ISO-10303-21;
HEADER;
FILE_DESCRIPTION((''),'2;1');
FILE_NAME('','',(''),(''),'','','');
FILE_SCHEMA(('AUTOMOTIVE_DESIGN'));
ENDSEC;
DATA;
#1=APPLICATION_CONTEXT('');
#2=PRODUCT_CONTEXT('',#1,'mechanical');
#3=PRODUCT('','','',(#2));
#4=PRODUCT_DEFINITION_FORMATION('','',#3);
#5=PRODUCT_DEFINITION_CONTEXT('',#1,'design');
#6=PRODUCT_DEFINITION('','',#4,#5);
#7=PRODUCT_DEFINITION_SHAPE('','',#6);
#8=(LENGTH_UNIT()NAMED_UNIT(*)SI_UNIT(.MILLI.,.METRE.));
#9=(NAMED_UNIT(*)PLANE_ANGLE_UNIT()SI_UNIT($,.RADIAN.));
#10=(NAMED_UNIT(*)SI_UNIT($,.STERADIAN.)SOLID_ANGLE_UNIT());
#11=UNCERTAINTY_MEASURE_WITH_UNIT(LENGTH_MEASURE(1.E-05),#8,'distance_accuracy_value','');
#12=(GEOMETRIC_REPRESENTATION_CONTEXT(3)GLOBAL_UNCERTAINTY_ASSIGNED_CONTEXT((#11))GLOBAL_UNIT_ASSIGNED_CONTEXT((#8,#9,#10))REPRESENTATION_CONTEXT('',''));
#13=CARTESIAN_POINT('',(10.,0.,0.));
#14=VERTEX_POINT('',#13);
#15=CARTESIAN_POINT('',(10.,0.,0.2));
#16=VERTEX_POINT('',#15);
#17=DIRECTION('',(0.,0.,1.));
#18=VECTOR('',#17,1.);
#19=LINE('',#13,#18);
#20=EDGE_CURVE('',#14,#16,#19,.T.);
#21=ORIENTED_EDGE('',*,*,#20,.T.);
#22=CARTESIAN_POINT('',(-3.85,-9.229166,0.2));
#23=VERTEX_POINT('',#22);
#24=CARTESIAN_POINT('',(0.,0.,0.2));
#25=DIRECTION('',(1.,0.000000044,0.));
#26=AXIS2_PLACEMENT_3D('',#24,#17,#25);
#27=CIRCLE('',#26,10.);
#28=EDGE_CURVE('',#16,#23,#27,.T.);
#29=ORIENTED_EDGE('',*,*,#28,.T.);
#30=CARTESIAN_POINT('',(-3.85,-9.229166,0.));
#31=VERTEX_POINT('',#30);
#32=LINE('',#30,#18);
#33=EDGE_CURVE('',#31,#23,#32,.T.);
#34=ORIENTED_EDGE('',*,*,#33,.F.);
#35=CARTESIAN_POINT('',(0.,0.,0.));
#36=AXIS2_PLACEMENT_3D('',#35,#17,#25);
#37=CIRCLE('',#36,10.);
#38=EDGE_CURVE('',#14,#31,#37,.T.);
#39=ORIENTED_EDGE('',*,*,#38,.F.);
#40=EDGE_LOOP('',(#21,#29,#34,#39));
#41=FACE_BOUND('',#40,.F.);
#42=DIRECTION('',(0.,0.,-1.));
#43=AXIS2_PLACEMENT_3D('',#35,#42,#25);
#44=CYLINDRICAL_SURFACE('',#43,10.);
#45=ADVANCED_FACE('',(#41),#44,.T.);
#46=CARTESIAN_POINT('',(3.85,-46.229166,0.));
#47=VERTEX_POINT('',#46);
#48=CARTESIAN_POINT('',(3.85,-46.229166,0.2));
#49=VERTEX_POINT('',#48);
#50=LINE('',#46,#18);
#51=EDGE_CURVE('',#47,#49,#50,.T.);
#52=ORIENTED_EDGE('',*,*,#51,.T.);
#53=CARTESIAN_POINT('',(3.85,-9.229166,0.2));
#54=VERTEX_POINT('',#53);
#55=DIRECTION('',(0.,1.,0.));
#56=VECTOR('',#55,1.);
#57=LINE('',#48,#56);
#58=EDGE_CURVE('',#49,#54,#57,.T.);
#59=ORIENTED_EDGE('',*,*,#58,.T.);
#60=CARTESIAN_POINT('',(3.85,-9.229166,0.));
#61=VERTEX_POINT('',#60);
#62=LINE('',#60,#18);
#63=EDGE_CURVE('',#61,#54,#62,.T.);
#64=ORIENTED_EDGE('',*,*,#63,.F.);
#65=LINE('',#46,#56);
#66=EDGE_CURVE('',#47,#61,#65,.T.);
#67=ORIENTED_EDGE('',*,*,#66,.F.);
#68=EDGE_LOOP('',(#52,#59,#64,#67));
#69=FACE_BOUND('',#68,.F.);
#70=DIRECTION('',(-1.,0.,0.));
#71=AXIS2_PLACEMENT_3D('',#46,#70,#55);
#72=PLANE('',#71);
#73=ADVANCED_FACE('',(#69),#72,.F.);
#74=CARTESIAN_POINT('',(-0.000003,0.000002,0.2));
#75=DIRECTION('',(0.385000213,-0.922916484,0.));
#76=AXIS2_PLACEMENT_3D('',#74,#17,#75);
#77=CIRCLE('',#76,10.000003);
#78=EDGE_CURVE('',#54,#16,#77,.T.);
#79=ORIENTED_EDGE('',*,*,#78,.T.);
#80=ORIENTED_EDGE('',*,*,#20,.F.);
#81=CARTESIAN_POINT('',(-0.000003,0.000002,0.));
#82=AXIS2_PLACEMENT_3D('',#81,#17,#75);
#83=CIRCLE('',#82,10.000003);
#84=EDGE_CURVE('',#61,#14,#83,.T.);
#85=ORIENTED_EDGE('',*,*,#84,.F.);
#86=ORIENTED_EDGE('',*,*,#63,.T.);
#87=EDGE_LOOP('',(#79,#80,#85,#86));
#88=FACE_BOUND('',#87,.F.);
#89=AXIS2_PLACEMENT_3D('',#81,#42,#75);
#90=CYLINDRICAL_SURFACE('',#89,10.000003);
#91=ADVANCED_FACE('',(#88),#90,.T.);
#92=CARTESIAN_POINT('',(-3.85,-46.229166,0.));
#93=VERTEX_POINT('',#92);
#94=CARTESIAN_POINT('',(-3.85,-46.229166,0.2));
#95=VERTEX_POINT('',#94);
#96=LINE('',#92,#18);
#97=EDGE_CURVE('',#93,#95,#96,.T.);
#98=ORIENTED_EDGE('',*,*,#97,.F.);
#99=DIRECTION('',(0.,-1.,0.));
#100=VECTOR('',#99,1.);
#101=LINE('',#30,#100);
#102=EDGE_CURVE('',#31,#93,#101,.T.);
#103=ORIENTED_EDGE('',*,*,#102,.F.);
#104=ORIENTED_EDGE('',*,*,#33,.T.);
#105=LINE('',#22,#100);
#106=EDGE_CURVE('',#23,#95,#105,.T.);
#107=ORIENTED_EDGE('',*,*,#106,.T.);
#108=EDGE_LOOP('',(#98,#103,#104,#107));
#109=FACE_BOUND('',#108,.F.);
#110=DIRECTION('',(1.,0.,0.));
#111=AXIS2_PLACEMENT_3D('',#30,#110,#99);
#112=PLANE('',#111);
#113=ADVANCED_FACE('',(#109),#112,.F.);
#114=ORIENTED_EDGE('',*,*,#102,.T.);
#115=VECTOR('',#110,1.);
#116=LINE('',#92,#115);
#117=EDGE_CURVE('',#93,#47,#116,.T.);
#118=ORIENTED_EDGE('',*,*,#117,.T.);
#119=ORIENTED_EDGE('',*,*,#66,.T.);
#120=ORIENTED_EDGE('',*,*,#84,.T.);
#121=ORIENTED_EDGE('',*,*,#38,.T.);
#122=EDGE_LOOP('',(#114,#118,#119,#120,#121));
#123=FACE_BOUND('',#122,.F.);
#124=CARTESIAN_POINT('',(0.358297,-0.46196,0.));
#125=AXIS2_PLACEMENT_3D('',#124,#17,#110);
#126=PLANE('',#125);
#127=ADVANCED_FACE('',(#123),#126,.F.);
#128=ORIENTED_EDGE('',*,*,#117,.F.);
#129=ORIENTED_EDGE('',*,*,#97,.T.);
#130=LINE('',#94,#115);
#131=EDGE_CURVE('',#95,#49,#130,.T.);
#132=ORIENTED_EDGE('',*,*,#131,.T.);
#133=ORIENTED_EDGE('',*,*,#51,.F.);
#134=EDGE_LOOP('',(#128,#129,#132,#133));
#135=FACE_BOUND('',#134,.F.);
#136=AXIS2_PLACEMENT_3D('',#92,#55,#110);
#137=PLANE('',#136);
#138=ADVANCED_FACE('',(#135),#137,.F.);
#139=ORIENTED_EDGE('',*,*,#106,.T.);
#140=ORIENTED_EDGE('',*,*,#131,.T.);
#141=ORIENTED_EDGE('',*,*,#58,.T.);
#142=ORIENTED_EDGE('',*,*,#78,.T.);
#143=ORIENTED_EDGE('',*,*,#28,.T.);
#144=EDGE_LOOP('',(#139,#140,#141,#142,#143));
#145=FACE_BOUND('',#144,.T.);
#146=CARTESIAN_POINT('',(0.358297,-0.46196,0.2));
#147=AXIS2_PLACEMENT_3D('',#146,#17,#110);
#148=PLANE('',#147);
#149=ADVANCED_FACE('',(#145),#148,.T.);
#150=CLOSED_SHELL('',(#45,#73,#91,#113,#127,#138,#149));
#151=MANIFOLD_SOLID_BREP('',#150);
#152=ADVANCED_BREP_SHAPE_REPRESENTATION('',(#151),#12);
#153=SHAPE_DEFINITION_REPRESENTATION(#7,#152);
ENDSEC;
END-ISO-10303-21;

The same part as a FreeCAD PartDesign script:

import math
import FreeCAD as App
import Part
import Sketcher

doc = App.newDocument("Part")
body = doc.addObject("PartDesign::Body", "Body")

# Sketch on XY plane
sketch1 = doc.addObject("Sketcher::SketchObject", "Sketch")
body.addObject(sketch1)
sketch1.AttachmentSupport = (doc.XY_Plane, [""])
sketch1.MapMode = "FlatFace"
sketch1.addGeometry([
    Part.ArcOfCircle(Part.Circle(App.Vector(0, 0, 0), App.Vector(0, 0, 1), 10), math.radians(-67), math.radians(0)),  # 0
    Part.ArcOfCircle(Part.Circle(App.Vector(0, 0, 0), App.Vector(0, 0, 1), 10), math.radians(0), math.radians(247)),  # 1
    Part.LineSegment(App.Vector(-4, -9, 0), App.Vector(-4, -46, 0)),  # 2
    Part.LineSegment(App.Vector(-4, -46, 0), App.Vector(4, -46, 0)),  # 3
    Part.LineSegment(App.Vector(4, -46, 0), App.Vector(4, -9, 0)),  # 4
], False)
sketch1.addConstraint([
    Sketcher.Constraint("Tangent", 0, 2, 1, 1),
    Sketcher.Constraint("Coincident", 1, 2, 2, 1),
    Sketcher.Constraint("Coincident", 2, 2, 3, 1),
    Sketcher.Constraint("Coincident", 3, 2, 4, 1),
    Sketcher.Constraint("Coincident", 4, 2, 0, 1),
    Sketcher.Constraint("Vertical", 2),
    Sketcher.Constraint("Horizontal", 3),
    Sketcher.Constraint("Vertical", 4),
    Sketcher.Constraint("Coincident", 0, 3, -1, 1),
    Sketcher.Constraint("Symmetric", 1, 2, 4, 2, -2),
    Sketcher.Constraint("PointOnObject", 0, 2, -1),
    Sketcher.Constraint("Radius", 1, 10.0),
    Sketcher.Constraint("DistanceY", 2, 2, 2, 1, 37.0),
    Sketcher.Constraint("DistanceX", 3, 1, 3, 2, 7.7),
])
pad1 = doc.addObject("PartDesign::Pad", "Pad")
body.addObject(pad1)
pad1.Profile = sketch1
pad1.Length = 0.2

doc.recompute()
